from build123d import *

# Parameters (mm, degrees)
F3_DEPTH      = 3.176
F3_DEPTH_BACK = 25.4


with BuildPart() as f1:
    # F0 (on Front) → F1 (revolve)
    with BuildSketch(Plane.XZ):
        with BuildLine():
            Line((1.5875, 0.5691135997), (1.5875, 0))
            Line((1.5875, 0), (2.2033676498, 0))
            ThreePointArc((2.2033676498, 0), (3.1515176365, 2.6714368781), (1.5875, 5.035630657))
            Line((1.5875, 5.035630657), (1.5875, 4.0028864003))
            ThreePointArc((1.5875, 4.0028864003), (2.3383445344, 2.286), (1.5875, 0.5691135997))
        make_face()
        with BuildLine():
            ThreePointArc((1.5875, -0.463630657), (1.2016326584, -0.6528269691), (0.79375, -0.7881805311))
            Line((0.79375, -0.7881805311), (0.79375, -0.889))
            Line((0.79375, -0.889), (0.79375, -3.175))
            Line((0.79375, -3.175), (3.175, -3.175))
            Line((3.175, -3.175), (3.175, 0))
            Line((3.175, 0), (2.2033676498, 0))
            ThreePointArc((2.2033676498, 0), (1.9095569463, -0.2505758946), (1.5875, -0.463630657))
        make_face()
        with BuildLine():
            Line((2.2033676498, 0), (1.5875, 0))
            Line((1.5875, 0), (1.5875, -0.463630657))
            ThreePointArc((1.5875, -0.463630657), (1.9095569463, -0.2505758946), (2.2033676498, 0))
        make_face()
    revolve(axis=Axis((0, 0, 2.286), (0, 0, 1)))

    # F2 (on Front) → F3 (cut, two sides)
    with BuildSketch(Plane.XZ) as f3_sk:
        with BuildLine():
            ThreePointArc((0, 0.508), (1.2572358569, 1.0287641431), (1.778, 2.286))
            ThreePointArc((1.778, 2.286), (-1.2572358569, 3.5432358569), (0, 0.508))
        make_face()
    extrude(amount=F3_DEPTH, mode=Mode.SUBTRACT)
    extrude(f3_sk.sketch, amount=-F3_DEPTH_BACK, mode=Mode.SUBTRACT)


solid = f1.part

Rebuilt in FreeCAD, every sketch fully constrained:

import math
import FreeCAD as App
import Part
import Sketcher
from FreeCAD import Vector
Q = App.Units.Quantity

doc = App.newDocument("Part")
body = doc.addObject("PartDesign::Body", "Body")

# Sketch on XZ plane
sketch1 = doc.addObject("Sketcher::SketchObject", "Sketch")
body.addObject(sketch1)
sketch1.AttachmentSupport = (doc.XZ_Plane, [""])
sketch1.MapMode = "FlatFace"
sketch1.addGeometry([
    Part.LineSegment(Vector(1.6, 0.6, 0), Vector(1.6, -0.5, 0)),  # 0
    Part.ArcOfCircle(Part.Circle(Vector(0, 2.3, 0), Vector(0, 0, 1), 3.2), math.radians(-75.52), math.radians(-60)),  # 1
    Part.LineSegment(Vector(0.8, -0.8, 0), Vector(0.8, -3.2, 0)),  # 2
    Part.LineSegment(Vector(0.8, -3.2, 0), Vector(3.2, -3.2, 0)),  # 3
    Part.LineSegment(Vector(3.2, -3.2, 0), Vector(3.2, 0, 0)),  # 4
    Part.LineSegment(Vector(3.2, 0, 0), Vector(2.2, 0, 0)),  # 5
    Part.ArcOfCircle(Part.Circle(Vector(0, 2.3, 0), Vector(0, 0, 1), 3.2), math.radians(-46), math.radians(60)),  # 6
    Part.LineSegment(Vector(1.6, 5, 0), Vector(1.6, 4, 0)),  # 7
    Part.ArcOfCircle(Part.Circle(Vector(0, 2.3, 0), Vector(0, 0, 1), 2.3), math.radians(-47), math.radians(47)),  # 8
], False)
sketch1.addConstraint([
    Sketcher.Constraint("Coincident", 0, 2, 1, 2),
    Sketcher.Constraint("Coincident", 1, 1, 2, 1),
    Sketcher.Constraint("Coincident", 2, 2, 3, 1),
    Sketcher.Constraint("Coincident", 3, 2, 4, 1),
    Sketcher.Constraint("Coincident", 4, 2, 5, 1),
    Sketcher.Constraint("Coincident", 5, 2, 6, 1),
    Sketcher.Constraint("Coincident", 6, 2, 7, 1),
    Sketcher.Constraint("Coincident", 7, 2, 8, 2),
    Sketcher.Constraint("Coincident", 8, 1, 0, 1),
    Sketcher.Constraint("Vertical", 0),
    Sketcher.Constraint("Vertical", 2),
    Sketcher.Constraint("Horizontal", 3),
    Sketcher.Constraint("Vertical", 4),
    Sketcher.Constraint("Horizontal", 5),
    Sketcher.Constraint("Vertical", 7),
    Sketcher.Constraint("Coincident", 6, 3, 1, 3),
    Sketcher.Constraint("Coincident", 8, 3, 1, 3),
    Sketcher.Constraint("Equal", 1, 6),
    Sketcher.Constraint("PointOnObject", 1, 3, -2),
    Sketcher.Constraint("PointOnObject", 4, 2, -1),
    Sketcher.Constraint("Vertical", 0, 2, 6, 2),
    Sketcher.Constraint("Radius", 1, Q("0.125 in")),
    Sketcher.Constraint("DistanceX", 3, 1, 3, 2, Q("0.09375 in")),
    Sketcher.Constraint("DistanceY", 4, 1, 4, 2, Q("0.125 in")),
    Sketcher.Constraint("DistanceY", -1, 1, 1, 3, Q("0.09 in")),
    Sketcher.Constraint("DistanceX", -1, 1, 0, 2, Q("0.0625 in")),
    Sketcher.Constraint("DistanceX", -1, 1, 1, 1, Q("0.03125 in")),
    Sketcher.Constraint("Radius", 8, 2.338345),
])
revolution = doc.addObject("PartDesign::Revolution", "Revolution")
body.addObject(revolution)
revolution.Profile = sketch1
revolution.ReferenceAxis = (sketch1, ["V_Axis"])
revolution.Angle = 360

# Sketch on XZ plane
sketch2 = doc.addObject("Sketcher::SketchObject", "Sketch001")
body.addObject(sketch2)
sketch2.AttachmentSupport = (doc.XZ_Plane, [""])
sketch2.MapMode = "FlatFace"
sketch2.addGeometry([
    Part.ArcOfCircle(Part.Circle(Vector(0, 2.3, 0), Vector(0, 0, 1), 1.8), math.radians(-90), math.radians(0)),
    Part.ArcOfCircle(Part.Circle(Vector(0, 2.3, 0), Vector(0, 0, 1), 1.8), math.radians(0), math.radians(270)),
], False)
sketch2.addConstraint([
    Sketcher.Constraint("Tangent", 0, 1, 1, 2),
    Sketcher.Constraint("Coincident", 1, 1, 0, 2),
    Sketcher.Constraint("PointOnObject", 0, 3, -2),
    Sketcher.Constraint("PointOnObject", 0, 1, -2),
    Sketcher.Constraint("Horizontal", 0, 3, 1, 1),
    Sketcher.Constraint("Radius", 0, Q("0.07 in")),
    Sketcher.Constraint("DistanceY", -1, 1, 0, 3, Q("0.09 in")),
])
pocket1 = doc.addObject("PartDesign::Pocket", "Pocket")
body.addObject(pocket1)
pocket1.Profile = sketch2
pocket1.Type = "ThroughAll"
pocket1.Midplane = True

doc.recompute()
